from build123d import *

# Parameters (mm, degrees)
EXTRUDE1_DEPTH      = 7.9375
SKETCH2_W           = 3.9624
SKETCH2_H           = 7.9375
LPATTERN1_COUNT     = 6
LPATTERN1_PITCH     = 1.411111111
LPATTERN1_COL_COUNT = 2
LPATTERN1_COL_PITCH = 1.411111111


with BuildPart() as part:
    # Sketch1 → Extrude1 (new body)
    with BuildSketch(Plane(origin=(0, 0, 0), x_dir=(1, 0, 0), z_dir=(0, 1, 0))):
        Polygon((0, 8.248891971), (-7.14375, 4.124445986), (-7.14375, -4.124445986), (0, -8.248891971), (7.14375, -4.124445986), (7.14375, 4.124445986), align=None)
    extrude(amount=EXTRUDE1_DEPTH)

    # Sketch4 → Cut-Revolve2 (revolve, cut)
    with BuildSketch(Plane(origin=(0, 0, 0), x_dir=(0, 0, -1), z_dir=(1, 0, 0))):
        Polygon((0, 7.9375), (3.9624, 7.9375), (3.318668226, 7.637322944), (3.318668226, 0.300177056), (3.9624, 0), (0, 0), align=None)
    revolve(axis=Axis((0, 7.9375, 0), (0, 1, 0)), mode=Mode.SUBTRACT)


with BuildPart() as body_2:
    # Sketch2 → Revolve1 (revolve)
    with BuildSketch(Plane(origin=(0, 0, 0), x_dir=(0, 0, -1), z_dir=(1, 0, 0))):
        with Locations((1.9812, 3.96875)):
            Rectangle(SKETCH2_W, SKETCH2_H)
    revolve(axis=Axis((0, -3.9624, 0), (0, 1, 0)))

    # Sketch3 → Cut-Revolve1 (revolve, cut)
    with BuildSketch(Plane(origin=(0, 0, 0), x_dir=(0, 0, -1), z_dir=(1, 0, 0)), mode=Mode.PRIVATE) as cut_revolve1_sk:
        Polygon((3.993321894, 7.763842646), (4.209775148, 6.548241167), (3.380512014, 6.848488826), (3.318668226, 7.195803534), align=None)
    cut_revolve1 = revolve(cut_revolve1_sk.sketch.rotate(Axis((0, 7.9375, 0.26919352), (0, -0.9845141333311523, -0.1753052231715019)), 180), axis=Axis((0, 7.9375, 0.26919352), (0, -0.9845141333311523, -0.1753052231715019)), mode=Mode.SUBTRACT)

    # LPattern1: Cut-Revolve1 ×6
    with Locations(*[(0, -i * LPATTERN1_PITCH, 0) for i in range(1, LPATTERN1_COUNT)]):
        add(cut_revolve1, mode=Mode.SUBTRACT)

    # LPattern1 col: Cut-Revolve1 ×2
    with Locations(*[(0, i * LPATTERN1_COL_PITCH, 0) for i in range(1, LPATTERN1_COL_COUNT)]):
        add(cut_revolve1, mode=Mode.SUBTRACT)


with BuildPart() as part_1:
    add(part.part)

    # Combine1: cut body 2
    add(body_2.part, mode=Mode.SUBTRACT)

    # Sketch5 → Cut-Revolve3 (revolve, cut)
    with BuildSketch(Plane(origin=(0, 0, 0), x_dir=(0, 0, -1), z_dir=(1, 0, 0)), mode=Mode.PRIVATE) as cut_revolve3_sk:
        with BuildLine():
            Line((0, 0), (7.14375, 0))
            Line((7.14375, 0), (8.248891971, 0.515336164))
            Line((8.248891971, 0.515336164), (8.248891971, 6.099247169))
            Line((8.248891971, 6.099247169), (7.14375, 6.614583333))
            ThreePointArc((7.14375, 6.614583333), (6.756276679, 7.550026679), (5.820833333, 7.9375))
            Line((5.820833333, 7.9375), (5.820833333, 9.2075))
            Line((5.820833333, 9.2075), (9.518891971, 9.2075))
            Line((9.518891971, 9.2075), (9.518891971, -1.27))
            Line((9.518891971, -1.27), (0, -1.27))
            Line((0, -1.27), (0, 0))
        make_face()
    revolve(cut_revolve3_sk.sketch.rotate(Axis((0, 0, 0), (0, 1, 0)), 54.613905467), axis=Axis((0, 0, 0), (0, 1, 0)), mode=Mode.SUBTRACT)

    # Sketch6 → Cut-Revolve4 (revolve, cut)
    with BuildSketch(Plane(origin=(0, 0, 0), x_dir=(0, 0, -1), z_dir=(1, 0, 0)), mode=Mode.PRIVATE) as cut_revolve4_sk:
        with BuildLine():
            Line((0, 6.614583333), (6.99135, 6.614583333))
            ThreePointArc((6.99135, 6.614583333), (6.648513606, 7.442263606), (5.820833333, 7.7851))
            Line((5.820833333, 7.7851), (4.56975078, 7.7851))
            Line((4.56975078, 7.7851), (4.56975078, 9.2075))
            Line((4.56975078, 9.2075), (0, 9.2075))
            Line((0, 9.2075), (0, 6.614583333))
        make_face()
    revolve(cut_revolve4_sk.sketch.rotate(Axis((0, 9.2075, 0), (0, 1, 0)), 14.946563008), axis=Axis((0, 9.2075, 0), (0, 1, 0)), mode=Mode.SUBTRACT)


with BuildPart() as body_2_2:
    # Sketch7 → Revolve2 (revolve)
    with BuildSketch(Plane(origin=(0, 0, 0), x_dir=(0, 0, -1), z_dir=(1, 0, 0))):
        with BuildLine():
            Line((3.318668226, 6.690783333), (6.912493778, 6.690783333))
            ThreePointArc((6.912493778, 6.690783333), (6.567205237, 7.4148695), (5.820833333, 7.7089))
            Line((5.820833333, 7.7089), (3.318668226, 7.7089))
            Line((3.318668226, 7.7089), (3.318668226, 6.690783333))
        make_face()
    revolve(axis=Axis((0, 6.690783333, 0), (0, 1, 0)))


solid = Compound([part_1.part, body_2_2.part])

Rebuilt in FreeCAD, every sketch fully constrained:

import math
import FreeCAD as App
import Part
import Sketcher

V = App.Vector
Q = App.Units.Quantity

doc = App.newDocument("Part")
body = doc.addObject("PartDesign::Body", "Body")

# Sketch on XZ plane
sketch1 = body.newObject("Sketcher::SketchObject", "Sketch")
sketch1.AttachmentSupport = (doc.getObject("XZ_Plane"), [""])
sketch1.MapMode = "FlatFace"
sketch1.addGeometry([
    Part.LineSegment(V(0, -8.248892, 0), V(-7.14375, -4.124446, 0)),  # 0
    Part.LineSegment(V(-7.14375, -4.124446, 0), V(-7.14375, 4.124446, 0)),  # 1
    Part.LineSegment(V(-7.14375, 4.124446, 0), V(0, 8.248892, 0)),  # 2
    Part.LineSegment(V(0, 8.248892, 0), V(7.14375, 4.124446, 0)),  # 3
    Part.LineSegment(V(7.14375, 4.124446, 0), V(7.14375, -4.124446, 0)),  # 4
    Part.LineSegment(V(7.14375, -4.124446, 0), V(0, -8.248892, 0)),  # 5
], False)
sketch1.addConstraint([
    Sketcher.Constraint("Coincident", 0, 2, 1, 1),
    Sketcher.Constraint("Coincident", 1, 2, 2, 1),
    Sketcher.Constraint("Coincident", 2, 2, 3, 1),
    Sketcher.Constraint("Coincident", 3, 2, 4, 1),
    Sketcher.Constraint("Coincident", 4, 2, 5, 1),
    Sketcher.Constraint("Coincident", 5, 2, 0, 1),
    Sketcher.Constraint("Vertical", 1),
    Sketcher.Constraint("Vertical", 4),
    Sketcher.Constraint("Symmetric", 0, 2, 3, 2, -1, 1),
    Sketcher.Constraint("Symmetric", 2, 2, 5, 2, -1, 1),
    Sketcher.Constraint("PointOnObject", 2, 2, -2),
    Sketcher.Constraint("Parallel", 2, 5),
    Sketcher.Constraint("Horizontal", 1, 2, 3, 2),
    Sketcher.Constraint("Angle", 0, Q("150 deg")),
    Sketcher.Constraint("DistanceX", 0, 2, -1, 1, Q("0.28125 in")),
    Sketcher.Constraint("DistanceY", 1, 1, 1, 2, 8.248892),
])
pad1 = body.newObject("PartDesign::Pad", "Pad")
pad1.Profile = sketch1
pad1.Length = Q("0.3125 in")
pad1.Reversed = True

# Sketch on YZ plane
sketch2 = body.newObject("Sketcher::SketchObject", "Sketch001")
sketch2.AttachmentSupport = (doc.getObject("YZ_Plane"), [""])
sketch2.MapMode = "FlatFace"
sketch2.addGeometry([
    Part.LineSegment(V(7.9375, -3.9624, 0), V(7.9375, 0, 0)),  # 0
    Part.LineSegment(V(7.9375, 0, 0), V(0, 0, 0)),  # 1
    Part.LineSegment(V(0, 0, 0), V(0, -3.9624, 0)),  # 2
    Part.LineSegment(V(0, -3.9624, 0), V(0.300177, -3.318668, 0)),  # 3
    Part.LineSegment(V(0.300177, -3.318668, 0), V(7.637323, -3.318668, 0)),  # 4
    Part.LineSegment(V(7.637323, -3.318668, 0), V(7.9375, -3.9624, 0)),  # 5
], False)
sketch2.addConstraint([
    Sketcher.Constraint("Coincident", 0, 2, 1, 1),
    Sketcher.Constraint("Coincident", 1, 2, 2, 1),
    Sketcher.Constraint("Coincident", 2, 2, 3, 1),
    Sketcher.Constraint("Coincident", 3, 2, 4, 1),
    Sketcher.Constraint("Coincident", 4, 2, 5, 1),
    Sketcher.Constraint("Coincident", 5, 2, 0, 1),
    Sketcher.Constraint("Vertical", 0),
    Sketcher.Constraint("Horizontal", 1),
    Sketcher.Constraint("Vertical", 2),
    Sketcher.Constraint("Horizontal", 4),
    Sketcher.Constraint("Coincident", 1, 2, -1, 1),
    Sketcher.Constraint("Horizontal", 2, 2, 5, 2),
    Sketcher.Constraint("Equal", 3, 5),
    Sketcher.Constraint("Angle", 3, Q("65 deg")),
    Sketcher.Constraint("DistanceX", 1, 2, 1, 1, Q("0.3125 in")),
    Sketcher.Constraint("DistanceY", 0, 1, 0, 2, Q("0.156 in")),
    Sketcher.Constraint("Distance", 3, 0.710279),
])
groove = body.newObject("PartDesign::Groove", "Groove")
groove.Profile = sketch2
groove.ReferenceAxis = (sketch2, ["H_Axis"])
groove.Angle = 360
body2 = doc.addObject("PartDesign::Body", "Body001")

# Sketch on YZ plane
sketch3 = body2.newObject("Sketcher::SketchObject", "Sketch002")
sketch3.AttachmentSupport = (doc.getObject("YZ_Plane001"), [""])
sketch3.MapMode = "FlatFace"
sketch3.addGeometry([
    Part.LineSegment(V(7.9375, 0, 0), V(0, 0, 0)),
    Part.LineSegment(V(0, 0, 0), V(0, -3.9624, 0)),
    Part.LineSegment(V(0, -3.9624, 0), V(7.9375, -3.9624, 0)),
    Part.LineSegment(V(7.9375, -3.9624, 0), V(7.9375, 0, 0)),
], False)
sketch3.addConstraint([
    Sketcher.Constraint("Coincident", 0, 2, 1, 1),
    Sketcher.Constraint("Coincident", 1, 2, 2, 1),
    Sketcher.Constraint("Coincident", 2, 2, 3, 1),
    Sketcher.Constraint("Coincident", 3, 2, 0, 1),
    Sketcher.Constraint("Horizontal", 0),
    Sketcher.Constraint("Vertical", 1),
    Sketcher.Constraint("Horizontal", 2),
    Sketcher.Constraint("Vertical", 3),
    Sketcher.Constraint("Coincident", 0, 2, -1, 1),
    Sketcher.Constraint("DistanceX", 0, 2, 0, 1, Q("0.3125 in")),
    Sketcher.Constraint("DistanceY", 1, 2, 1, 1, Q("0.156 in")),
])
revolution = body2.newObject("PartDesign::Revolution", "Revolution")
revolution.Profile = sketch3
revolution.ReferenceAxis = (sketch3, ["H_Axis"])
revolution.Angle = 360

# Sketch on YZ plane
sketch4 = body2.newObject("Sketcher::SketchObject", "Sketch003")
sketch4.AttachmentSupport = (doc.getObject("YZ_Plane001"), [""])
sketch4.MapMode = "FlatFace"
sketch4.addGeometry([
    Part.LineSegment(V(6.548241, -4.209775, 0), V(7.763843, -3.993322, 0)),
    Part.LineSegment(V(7.763843, -3.993322, 0), V(7.195804, -3.318668, 0)),
    Part.LineSegment(V(7.195804, -3.318668, 0), V(6.848489, -3.380512, 0)),
    Part.LineSegment(V(6.848489, -3.380512, 0), V(6.548241, -4.209775, 0)),
], False)
sketch4.addGeometry(Part.LineSegment(V(7.03351, 0.108227, 0), V(5.817908, -0.108227, 0)), True)  # axis
sketch4.addConstraint([
    Sketcher.Constraint("Coincident", 0, 2, 1, 1),
    Sketcher.Constraint("Coincident", 1, 2, 2, 1),
    Sketcher.Constraint("Coincident", 2, 2, 3, 1),
    Sketcher.Constraint("Coincident", 3, 2, 0, 1),
    Sketcher.Constraint("Parallel", 0, 2),
    Sketcher.Constraint("Parallel", 2, 4),
    Sketcher.Constraint("Equal", 1, 3),
    Sketcher.Constraint("Equal", 0, 4),
    Sketcher.Constraint("DistanceY", 3, 2, 4, 1, Q("0.1700001 in")),
    Sketcher.Constraint("DistanceX", 3, 2, 0, 2, 1.215601),
    Sketcher.Constraint("DistanceY", 0, 2, -1, 1, 3.993322),
    Sketcher.Constraint("DistanceY", 1, 2, -1, 1, 3.318668),
    Sketcher.Constraint("DistanceX", -1, 1, 2, 2, 6.848489),
    Sketcher.Constraint("DistanceX", -1, 1, 3, 2, 6.548241),
    Sketcher.Constraint("DistanceX", -1, 1, 4, 1, 7.03351),
    Sketcher.Constraint("DistanceX", 1, 2, 0, 2, 0.568039),
])
groove2 = body2.newObject("PartDesign::Groove", "Groove001")
groove2.Profile = sketch4
groove2.ReferenceAxis = (sketch4, ["Axis0"])
groove2.Angle = 360
doc.recompute()

linearpattern = body2.newObject("PartDesign::LinearPattern", "LinearPattern")
linearpattern.Originals = [groove2]
linearpattern.Direction = (doc.getObject("Y_Axis001"), [""])
linearpattern.Mode = "offset"
linearpattern.Offset = 1.411111
linearpattern.Occurrences = 6
linearpattern.Reversed = True
body2.Tip = linearpattern
doc.recompute()

linearpattern2 = body2.newObject("PartDesign::LinearPattern", "LinearPattern001")
linearpattern2.Originals = [groove2]
linearpattern2.Direction = (doc.getObject("Y_Axis001"), [""])
linearpattern2.Mode = "offset"
linearpattern2.Offset = 1.411111
linearpattern2.Occurrences = 2
body2.Tip = linearpattern2
doc.recompute()

boolean = body.newObject("PartDesign::Boolean", "Boolean")
boolean.Type = "Cut"
boolean.addObjects([body2])

# Sketch on YZ plane
sketch5 = body.newObject("Sketcher::SketchObject", "Sketch004")
sketch5.AttachmentSupport = (doc.getObject("YZ_Plane"), [""])
sketch5.MapMode = "FlatFace"
sketch5.addGeometry([
    Part.LineSegment(V(0, -7.14375, 0), V(0, 0, 0)),  # 0
    Part.LineSegment(V(0, 0, 0), V(-1.27, 0, 0)),  # 1
    Part.LineSegment(V(-1.27, 0, 0), V(-1.27, -9.518892, 0)),  # 2
    Part.LineSegment(V(-1.27, -9.518892, 0), V(9.2075, -9.518892, 0)),  # 3
    Part.LineSegment(V(9.2075, -9.518892, 0), V(9.2075, -5.820833, 0)),  # 4
    Part.LineSegment(V(9.2075, -5.820833, 0), V(7.9375, -5.820833, 0)),  # 5
    Part.ArcOfCircle(Part.Circle(V(6.614583, -5.820833, 0), V(0, 0, 1), 1.322917), math.radians(-90), math.radians(0)),  # 6
    Part.LineSegment(V(6.614583, -7.14375, 0), V(6.099247, -8.248892, 0)),  # 7
    Part.LineSegment(V(6.099247, -8.248892, 0), V(0.515336, -8.248892, 0)),  # 8
    Part.LineSegment(V(0.515336, -8.248892, 0), V(0, -7.14375, 0)),  # 9
], False)
sketch5.addConstraint([
    Sketcher.Constraint("Coincident", 0, 2, 1, 1),
    Sketcher.Constraint("Coincident", 1, 2, 2, 1),
    Sketcher.Constraint("Coincident", 2, 2, 3, 1),
    Sketcher.Constraint("Coincident", 3, 2, 4, 1),
    Sketcher.Constraint("Coincident", 4, 2, 5, 1),
    Sketcher.Constraint("Coincident", 5, 2, 6, 2),
    Sketcher.Constraint("Coincident", 6, 1, 7, 1),
    Sketcher.Constraint("Coincident", 7, 2, 8, 1),
    Sketcher.Constraint("Coincident", 8, 2, 9, 1),
    Sketcher.Constraint("Coincident", 9, 2, 0, 1),
    Sketcher.Constraint("Vertical", 0),
    Sketcher.Constraint("Horizontal", 1),
    Sketcher.Constraint("Vertical", 2),
    Sketcher.Constraint("Horizontal", 3),
    Sketcher.Constraint("Vertical", 4),
    Sketcher.Constraint("Horizontal", 5),
    Sketcher.Constraint("Horizontal", 8),
    Sketcher.Constraint("Coincident", 0, 2, -1, 1),
    Sketcher.Constraint("Horizontal", 6, 3, 4, 2),
    Sketcher.Constraint("Horizontal", 6, 1, 9, 2),
    Sketcher.Constraint("Equal", 1, 5),
    Sketcher.Constraint("Equal", 7, 9),
    Sketcher.Constraint("Angle", 7, Q("-115 deg")),
    Sketcher.Constraint("DistanceX", 1, 2, 1, 1, Q("0.05 in")),
    Sketcher.Constraint("DistanceY", 0, 1, 0, 2, Q("0.28125 in")),
    Sketcher.Constraint("DistanceY", 3, 2, 7, 2, Q("0.05 in")),
    Sketcher.Constraint("DistanceX", 3, 1, 3, 2, Q("0.4125 in")),
    Sketcher.Constraint("Radius", 6, 1.322917),
    Sketcher.Constraint("DistanceX", 8, 2, 8, 1, 5.583911),
    Sketcher.Constraint("DistanceY", 2, 2, 2, 1, 9.518892),
])
groove3 = body.newObject("PartDesign::Groove", "Groove002")
groove3.Profile = sketch5
groove3.ReferenceAxis = (sketch5, ["H_Axis"])
groove3.Angle = 360

# Sketch on YZ plane
sketch6 = body.newObject("Sketcher::SketchObject", "Sketch005")
sketch6.AttachmentSupport = (doc.getObject("YZ_Plane"), [""])
sketch6.MapMode = "FlatFace"
sketch6.addGeometry([
    Part.LineSegment(V(6.614583, 0, 0), V(6.614583, -6.99135, 0)),  # 0
    Part.ArcOfCircle(Part.Circle(V(6.614583, -5.820833, 0), V(0, 0, 1), 1.170517), math.radians(-90), math.radians(0)),  # 1
    Part.LineSegment(V(7.7851, -5.820833, 0), V(7.7851, -4.569751, 0)),  # 2
    Part.LineSegment(V(7.7851, -4.569751, 0), V(9.2075, -4.569751, 0)),  # 3
    Part.LineSegment(V(9.2075, -4.569751, 0), V(9.2075, 0, 0)),  # 4
    Part.LineSegment(V(9.2075, 0, 0), V(6.614583, 0, 0)),  # 5
], False)
sketch6.addConstraint([
    Sketcher.Constraint("Coincident", 0, 2, 1, 1),
    Sketcher.Constraint("Tangent", 1, 2, 2, 1),
    Sketcher.Constraint("Coincident", 2, 2, 3, 1),
    Sketcher.Constraint("Coincident", 3, 2, 4, 1),
    Sketcher.Constraint("Coincident", 4, 2, 5, 1),
    Sketcher.Constraint("Coincident", 5, 2, 0, 1),
    Sketcher.Constraint("Vertical", 0),
    Sketcher.Constraint("Vertical", 2),
    Sketcher.Constraint("Horizontal", 3),
    Sketcher.Constraint("Vertical", 4),
    Sketcher.Constraint("Horizontal", 5),
    Sketcher.Constraint("PointOnObject", 4, 2, -1),
    Sketcher.Constraint("Vertical", 1, 3, 0, 2),
    Sketcher.Constraint("DistanceX", 3, 1, 3, 2, Q("0.056 in")),
    Sketcher.Constraint("DistanceX", -1, 1, 1, 2, Q("0.3065 in")),
    Sketcher.Constraint("Radius", 1, 1.170517),
    Sketcher.Constraint("DistanceY", 0, 2, 0, 1, 6.99135),
    Sketcher.Constraint("DistanceY", 4, 1, 4, 2, 4.569751),
])
groove4 = body.newObject("PartDesign::Groove", "Groove003")
groove4.Profile = sketch6
groove4.ReferenceAxis = (sketch6, ["H_Axis"])
groove4.Angle = 360
body3 = doc.addObject("PartDesign::Body", "Body002")

# Sketch on YZ plane
sketch7 = body3.newObject("Sketcher::SketchObject", "Sketch006")
sketch7.AttachmentSupport = (doc.getObject("YZ_Plane002"), [""])
sketch7.MapMode = "FlatFace"
sketch7.addGeometry([
    Part.LineSegment(V(6.690783, -3.318668, 0), V(6.690783, -6.912494, 0)),
    Part.ArcOfCircle(Part.Circle(V(6.614583, -5.820833, 0), V(0, 0, 1), 1.094317), math.radians(-86.007121), math.radians(0)),
    Part.LineSegment(V(7.7089, -5.820833, 0), V(7.7089, -3.318668, 0)),
    Part.LineSegment(V(7.7089, -3.318668, 0), V(6.690783, -3.318668, 0)),
], False)
sketch7.addConstraint([
    Sketcher.Constraint("Coincident", 0, 2, 1, 1),
    Sketcher.Constraint("Tangent", 1, 2, 2, 1),
    Sketcher.Constraint("Coincident", 2, 2, 3, 1),
    Sketcher.Constraint("Coincident", 3, 2, 0, 1),
    Sketcher.Constraint("Vertical", 0),
    Sketcher.Constraint("Vertical", 2),
    Sketcher.Constraint("Horizontal", 3),
    Sketcher.Constraint("DistanceX", 1, 3, 0, 2, Q("0.003 in")),
    Sketcher.Constraint("DistanceX", -1, 1, 1, 2, Q("0.3035 in")),
    Sketcher.Constraint("Radius", 1, 1.094317),
    Sketcher.Constraint("DistanceY", 0, 2, 0, 1, 3.593826),
    Sketcher.Constraint("DistanceY", 2, 2, -1, 1, 3.318668),
])
revolution2 = body3.newObject("PartDesign::Revolution", "Revolution001")
revolution2.Profile = sketch7
revolution2.ReferenceAxis = (sketch7, ["H_Axis"])
revolution2.Angle = 360

doc.recompute()
